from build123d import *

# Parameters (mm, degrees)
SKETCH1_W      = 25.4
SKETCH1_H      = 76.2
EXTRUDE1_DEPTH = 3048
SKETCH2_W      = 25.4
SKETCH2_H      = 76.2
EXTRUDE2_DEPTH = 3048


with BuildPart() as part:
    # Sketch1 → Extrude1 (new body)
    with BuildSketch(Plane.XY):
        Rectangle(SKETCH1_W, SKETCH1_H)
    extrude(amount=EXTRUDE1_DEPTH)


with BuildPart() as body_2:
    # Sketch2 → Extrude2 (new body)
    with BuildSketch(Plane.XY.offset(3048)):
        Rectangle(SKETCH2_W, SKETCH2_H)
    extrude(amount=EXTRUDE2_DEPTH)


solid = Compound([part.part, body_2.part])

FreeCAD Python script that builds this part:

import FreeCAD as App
import Part
import Sketcher
Q = App.Units.Quantity


def add_polygon(sketch, points):
    """Adds a closed chain of lines whose ends are joined by coincident constraints."""
    first, n = sketch.GeometryCount, len(points)
    for a, b in zip(points, points[1:] + points[:1]):
        sketch.addGeometry(Part.LineSegment(App.Vector(*a, 0), App.Vector(*b, 0)), False)
    for i in range(n):
        sketch.addConstraint(Sketcher.Constraint("Coincident", first + i, 2, first + (i + 1) % n, 1))

doc = App.newDocument("Part")
body = doc.addObject("PartDesign::Body", "Body")

# Sketch on XY plane
sketch1 = doc.addObject("Sketcher::SketchObject", "Sketch")
body.addObject(sketch1)
sketch1.AttachmentSupport = (doc.XY_Plane, [""])
sketch1.MapMode = "FlatFace"
add_polygon(sketch1, [(-13, 38), (-13, -38), (13, -38), (13, 38)])  # lines 0-3
sketch1.addConstraint([
    Sketcher.Constraint("Vertical", 0),
    Sketcher.Constraint("Horizontal", 1),
    Sketcher.Constraint("Vertical", 2),
    Sketcher.Constraint("Horizontal", 3),
    Sketcher.Constraint("Symmetric", 0, 2, 2, 2, -1, 1),
    Sketcher.Constraint("DistanceX", 1, 1, 1, 2, Q("1 in")),
    Sketcher.Constraint("DistanceY", 0, 2, 0, 1, Q("3 in")),
])
pad1 = doc.addObject("PartDesign::Pad", "Pad")
body.addObject(pad1)
pad1.Profile = sketch1
pad1.Length = Q("120 in")
body2 = doc.addObject("PartDesign::Body", "Body001")

# Sketch on XY plane
sketch2 = doc.addObject("Sketcher::SketchObject", "Sketch001")
body2.addObject(sketch2)
sketch2.AttachmentSupport = (doc.getObject("XY_Plane001"), [""])
sketch2.MapMode = "FlatFace"
sketch2.AttachmentOffset = App.Placement(App.Vector(0, 0, 120 * 25.4), App.Rotation())
add_polygon(sketch2, [(-13, 38), (-13, -38), (13, -38), (13, 38)])  # lines 0-3
sketch2.addConstraint([
    Sketcher.Constraint("Vertical", 0),
    Sketcher.Constraint("Horizontal", 1),
    Sketcher.Constraint("Vertical", 2),
    Sketcher.Constraint("Horizontal", 3),
    Sketcher.Constraint("Symmetric", 0, 2, 2, 2, -1, 1),
    Sketcher.Constraint("DistanceX", 1, 1, 1, 2, Q("1 in")),
    Sketcher.Constraint("DistanceY", 0, 2, 0, 1, Q("3 in")),
])
pad2 = doc.addObject("PartDesign::Pad", "Pad001")
body2.addObject(pad2)
pad2.Profile = sketch2
pad2.Length = Q("120 in")

doc.recompute()
